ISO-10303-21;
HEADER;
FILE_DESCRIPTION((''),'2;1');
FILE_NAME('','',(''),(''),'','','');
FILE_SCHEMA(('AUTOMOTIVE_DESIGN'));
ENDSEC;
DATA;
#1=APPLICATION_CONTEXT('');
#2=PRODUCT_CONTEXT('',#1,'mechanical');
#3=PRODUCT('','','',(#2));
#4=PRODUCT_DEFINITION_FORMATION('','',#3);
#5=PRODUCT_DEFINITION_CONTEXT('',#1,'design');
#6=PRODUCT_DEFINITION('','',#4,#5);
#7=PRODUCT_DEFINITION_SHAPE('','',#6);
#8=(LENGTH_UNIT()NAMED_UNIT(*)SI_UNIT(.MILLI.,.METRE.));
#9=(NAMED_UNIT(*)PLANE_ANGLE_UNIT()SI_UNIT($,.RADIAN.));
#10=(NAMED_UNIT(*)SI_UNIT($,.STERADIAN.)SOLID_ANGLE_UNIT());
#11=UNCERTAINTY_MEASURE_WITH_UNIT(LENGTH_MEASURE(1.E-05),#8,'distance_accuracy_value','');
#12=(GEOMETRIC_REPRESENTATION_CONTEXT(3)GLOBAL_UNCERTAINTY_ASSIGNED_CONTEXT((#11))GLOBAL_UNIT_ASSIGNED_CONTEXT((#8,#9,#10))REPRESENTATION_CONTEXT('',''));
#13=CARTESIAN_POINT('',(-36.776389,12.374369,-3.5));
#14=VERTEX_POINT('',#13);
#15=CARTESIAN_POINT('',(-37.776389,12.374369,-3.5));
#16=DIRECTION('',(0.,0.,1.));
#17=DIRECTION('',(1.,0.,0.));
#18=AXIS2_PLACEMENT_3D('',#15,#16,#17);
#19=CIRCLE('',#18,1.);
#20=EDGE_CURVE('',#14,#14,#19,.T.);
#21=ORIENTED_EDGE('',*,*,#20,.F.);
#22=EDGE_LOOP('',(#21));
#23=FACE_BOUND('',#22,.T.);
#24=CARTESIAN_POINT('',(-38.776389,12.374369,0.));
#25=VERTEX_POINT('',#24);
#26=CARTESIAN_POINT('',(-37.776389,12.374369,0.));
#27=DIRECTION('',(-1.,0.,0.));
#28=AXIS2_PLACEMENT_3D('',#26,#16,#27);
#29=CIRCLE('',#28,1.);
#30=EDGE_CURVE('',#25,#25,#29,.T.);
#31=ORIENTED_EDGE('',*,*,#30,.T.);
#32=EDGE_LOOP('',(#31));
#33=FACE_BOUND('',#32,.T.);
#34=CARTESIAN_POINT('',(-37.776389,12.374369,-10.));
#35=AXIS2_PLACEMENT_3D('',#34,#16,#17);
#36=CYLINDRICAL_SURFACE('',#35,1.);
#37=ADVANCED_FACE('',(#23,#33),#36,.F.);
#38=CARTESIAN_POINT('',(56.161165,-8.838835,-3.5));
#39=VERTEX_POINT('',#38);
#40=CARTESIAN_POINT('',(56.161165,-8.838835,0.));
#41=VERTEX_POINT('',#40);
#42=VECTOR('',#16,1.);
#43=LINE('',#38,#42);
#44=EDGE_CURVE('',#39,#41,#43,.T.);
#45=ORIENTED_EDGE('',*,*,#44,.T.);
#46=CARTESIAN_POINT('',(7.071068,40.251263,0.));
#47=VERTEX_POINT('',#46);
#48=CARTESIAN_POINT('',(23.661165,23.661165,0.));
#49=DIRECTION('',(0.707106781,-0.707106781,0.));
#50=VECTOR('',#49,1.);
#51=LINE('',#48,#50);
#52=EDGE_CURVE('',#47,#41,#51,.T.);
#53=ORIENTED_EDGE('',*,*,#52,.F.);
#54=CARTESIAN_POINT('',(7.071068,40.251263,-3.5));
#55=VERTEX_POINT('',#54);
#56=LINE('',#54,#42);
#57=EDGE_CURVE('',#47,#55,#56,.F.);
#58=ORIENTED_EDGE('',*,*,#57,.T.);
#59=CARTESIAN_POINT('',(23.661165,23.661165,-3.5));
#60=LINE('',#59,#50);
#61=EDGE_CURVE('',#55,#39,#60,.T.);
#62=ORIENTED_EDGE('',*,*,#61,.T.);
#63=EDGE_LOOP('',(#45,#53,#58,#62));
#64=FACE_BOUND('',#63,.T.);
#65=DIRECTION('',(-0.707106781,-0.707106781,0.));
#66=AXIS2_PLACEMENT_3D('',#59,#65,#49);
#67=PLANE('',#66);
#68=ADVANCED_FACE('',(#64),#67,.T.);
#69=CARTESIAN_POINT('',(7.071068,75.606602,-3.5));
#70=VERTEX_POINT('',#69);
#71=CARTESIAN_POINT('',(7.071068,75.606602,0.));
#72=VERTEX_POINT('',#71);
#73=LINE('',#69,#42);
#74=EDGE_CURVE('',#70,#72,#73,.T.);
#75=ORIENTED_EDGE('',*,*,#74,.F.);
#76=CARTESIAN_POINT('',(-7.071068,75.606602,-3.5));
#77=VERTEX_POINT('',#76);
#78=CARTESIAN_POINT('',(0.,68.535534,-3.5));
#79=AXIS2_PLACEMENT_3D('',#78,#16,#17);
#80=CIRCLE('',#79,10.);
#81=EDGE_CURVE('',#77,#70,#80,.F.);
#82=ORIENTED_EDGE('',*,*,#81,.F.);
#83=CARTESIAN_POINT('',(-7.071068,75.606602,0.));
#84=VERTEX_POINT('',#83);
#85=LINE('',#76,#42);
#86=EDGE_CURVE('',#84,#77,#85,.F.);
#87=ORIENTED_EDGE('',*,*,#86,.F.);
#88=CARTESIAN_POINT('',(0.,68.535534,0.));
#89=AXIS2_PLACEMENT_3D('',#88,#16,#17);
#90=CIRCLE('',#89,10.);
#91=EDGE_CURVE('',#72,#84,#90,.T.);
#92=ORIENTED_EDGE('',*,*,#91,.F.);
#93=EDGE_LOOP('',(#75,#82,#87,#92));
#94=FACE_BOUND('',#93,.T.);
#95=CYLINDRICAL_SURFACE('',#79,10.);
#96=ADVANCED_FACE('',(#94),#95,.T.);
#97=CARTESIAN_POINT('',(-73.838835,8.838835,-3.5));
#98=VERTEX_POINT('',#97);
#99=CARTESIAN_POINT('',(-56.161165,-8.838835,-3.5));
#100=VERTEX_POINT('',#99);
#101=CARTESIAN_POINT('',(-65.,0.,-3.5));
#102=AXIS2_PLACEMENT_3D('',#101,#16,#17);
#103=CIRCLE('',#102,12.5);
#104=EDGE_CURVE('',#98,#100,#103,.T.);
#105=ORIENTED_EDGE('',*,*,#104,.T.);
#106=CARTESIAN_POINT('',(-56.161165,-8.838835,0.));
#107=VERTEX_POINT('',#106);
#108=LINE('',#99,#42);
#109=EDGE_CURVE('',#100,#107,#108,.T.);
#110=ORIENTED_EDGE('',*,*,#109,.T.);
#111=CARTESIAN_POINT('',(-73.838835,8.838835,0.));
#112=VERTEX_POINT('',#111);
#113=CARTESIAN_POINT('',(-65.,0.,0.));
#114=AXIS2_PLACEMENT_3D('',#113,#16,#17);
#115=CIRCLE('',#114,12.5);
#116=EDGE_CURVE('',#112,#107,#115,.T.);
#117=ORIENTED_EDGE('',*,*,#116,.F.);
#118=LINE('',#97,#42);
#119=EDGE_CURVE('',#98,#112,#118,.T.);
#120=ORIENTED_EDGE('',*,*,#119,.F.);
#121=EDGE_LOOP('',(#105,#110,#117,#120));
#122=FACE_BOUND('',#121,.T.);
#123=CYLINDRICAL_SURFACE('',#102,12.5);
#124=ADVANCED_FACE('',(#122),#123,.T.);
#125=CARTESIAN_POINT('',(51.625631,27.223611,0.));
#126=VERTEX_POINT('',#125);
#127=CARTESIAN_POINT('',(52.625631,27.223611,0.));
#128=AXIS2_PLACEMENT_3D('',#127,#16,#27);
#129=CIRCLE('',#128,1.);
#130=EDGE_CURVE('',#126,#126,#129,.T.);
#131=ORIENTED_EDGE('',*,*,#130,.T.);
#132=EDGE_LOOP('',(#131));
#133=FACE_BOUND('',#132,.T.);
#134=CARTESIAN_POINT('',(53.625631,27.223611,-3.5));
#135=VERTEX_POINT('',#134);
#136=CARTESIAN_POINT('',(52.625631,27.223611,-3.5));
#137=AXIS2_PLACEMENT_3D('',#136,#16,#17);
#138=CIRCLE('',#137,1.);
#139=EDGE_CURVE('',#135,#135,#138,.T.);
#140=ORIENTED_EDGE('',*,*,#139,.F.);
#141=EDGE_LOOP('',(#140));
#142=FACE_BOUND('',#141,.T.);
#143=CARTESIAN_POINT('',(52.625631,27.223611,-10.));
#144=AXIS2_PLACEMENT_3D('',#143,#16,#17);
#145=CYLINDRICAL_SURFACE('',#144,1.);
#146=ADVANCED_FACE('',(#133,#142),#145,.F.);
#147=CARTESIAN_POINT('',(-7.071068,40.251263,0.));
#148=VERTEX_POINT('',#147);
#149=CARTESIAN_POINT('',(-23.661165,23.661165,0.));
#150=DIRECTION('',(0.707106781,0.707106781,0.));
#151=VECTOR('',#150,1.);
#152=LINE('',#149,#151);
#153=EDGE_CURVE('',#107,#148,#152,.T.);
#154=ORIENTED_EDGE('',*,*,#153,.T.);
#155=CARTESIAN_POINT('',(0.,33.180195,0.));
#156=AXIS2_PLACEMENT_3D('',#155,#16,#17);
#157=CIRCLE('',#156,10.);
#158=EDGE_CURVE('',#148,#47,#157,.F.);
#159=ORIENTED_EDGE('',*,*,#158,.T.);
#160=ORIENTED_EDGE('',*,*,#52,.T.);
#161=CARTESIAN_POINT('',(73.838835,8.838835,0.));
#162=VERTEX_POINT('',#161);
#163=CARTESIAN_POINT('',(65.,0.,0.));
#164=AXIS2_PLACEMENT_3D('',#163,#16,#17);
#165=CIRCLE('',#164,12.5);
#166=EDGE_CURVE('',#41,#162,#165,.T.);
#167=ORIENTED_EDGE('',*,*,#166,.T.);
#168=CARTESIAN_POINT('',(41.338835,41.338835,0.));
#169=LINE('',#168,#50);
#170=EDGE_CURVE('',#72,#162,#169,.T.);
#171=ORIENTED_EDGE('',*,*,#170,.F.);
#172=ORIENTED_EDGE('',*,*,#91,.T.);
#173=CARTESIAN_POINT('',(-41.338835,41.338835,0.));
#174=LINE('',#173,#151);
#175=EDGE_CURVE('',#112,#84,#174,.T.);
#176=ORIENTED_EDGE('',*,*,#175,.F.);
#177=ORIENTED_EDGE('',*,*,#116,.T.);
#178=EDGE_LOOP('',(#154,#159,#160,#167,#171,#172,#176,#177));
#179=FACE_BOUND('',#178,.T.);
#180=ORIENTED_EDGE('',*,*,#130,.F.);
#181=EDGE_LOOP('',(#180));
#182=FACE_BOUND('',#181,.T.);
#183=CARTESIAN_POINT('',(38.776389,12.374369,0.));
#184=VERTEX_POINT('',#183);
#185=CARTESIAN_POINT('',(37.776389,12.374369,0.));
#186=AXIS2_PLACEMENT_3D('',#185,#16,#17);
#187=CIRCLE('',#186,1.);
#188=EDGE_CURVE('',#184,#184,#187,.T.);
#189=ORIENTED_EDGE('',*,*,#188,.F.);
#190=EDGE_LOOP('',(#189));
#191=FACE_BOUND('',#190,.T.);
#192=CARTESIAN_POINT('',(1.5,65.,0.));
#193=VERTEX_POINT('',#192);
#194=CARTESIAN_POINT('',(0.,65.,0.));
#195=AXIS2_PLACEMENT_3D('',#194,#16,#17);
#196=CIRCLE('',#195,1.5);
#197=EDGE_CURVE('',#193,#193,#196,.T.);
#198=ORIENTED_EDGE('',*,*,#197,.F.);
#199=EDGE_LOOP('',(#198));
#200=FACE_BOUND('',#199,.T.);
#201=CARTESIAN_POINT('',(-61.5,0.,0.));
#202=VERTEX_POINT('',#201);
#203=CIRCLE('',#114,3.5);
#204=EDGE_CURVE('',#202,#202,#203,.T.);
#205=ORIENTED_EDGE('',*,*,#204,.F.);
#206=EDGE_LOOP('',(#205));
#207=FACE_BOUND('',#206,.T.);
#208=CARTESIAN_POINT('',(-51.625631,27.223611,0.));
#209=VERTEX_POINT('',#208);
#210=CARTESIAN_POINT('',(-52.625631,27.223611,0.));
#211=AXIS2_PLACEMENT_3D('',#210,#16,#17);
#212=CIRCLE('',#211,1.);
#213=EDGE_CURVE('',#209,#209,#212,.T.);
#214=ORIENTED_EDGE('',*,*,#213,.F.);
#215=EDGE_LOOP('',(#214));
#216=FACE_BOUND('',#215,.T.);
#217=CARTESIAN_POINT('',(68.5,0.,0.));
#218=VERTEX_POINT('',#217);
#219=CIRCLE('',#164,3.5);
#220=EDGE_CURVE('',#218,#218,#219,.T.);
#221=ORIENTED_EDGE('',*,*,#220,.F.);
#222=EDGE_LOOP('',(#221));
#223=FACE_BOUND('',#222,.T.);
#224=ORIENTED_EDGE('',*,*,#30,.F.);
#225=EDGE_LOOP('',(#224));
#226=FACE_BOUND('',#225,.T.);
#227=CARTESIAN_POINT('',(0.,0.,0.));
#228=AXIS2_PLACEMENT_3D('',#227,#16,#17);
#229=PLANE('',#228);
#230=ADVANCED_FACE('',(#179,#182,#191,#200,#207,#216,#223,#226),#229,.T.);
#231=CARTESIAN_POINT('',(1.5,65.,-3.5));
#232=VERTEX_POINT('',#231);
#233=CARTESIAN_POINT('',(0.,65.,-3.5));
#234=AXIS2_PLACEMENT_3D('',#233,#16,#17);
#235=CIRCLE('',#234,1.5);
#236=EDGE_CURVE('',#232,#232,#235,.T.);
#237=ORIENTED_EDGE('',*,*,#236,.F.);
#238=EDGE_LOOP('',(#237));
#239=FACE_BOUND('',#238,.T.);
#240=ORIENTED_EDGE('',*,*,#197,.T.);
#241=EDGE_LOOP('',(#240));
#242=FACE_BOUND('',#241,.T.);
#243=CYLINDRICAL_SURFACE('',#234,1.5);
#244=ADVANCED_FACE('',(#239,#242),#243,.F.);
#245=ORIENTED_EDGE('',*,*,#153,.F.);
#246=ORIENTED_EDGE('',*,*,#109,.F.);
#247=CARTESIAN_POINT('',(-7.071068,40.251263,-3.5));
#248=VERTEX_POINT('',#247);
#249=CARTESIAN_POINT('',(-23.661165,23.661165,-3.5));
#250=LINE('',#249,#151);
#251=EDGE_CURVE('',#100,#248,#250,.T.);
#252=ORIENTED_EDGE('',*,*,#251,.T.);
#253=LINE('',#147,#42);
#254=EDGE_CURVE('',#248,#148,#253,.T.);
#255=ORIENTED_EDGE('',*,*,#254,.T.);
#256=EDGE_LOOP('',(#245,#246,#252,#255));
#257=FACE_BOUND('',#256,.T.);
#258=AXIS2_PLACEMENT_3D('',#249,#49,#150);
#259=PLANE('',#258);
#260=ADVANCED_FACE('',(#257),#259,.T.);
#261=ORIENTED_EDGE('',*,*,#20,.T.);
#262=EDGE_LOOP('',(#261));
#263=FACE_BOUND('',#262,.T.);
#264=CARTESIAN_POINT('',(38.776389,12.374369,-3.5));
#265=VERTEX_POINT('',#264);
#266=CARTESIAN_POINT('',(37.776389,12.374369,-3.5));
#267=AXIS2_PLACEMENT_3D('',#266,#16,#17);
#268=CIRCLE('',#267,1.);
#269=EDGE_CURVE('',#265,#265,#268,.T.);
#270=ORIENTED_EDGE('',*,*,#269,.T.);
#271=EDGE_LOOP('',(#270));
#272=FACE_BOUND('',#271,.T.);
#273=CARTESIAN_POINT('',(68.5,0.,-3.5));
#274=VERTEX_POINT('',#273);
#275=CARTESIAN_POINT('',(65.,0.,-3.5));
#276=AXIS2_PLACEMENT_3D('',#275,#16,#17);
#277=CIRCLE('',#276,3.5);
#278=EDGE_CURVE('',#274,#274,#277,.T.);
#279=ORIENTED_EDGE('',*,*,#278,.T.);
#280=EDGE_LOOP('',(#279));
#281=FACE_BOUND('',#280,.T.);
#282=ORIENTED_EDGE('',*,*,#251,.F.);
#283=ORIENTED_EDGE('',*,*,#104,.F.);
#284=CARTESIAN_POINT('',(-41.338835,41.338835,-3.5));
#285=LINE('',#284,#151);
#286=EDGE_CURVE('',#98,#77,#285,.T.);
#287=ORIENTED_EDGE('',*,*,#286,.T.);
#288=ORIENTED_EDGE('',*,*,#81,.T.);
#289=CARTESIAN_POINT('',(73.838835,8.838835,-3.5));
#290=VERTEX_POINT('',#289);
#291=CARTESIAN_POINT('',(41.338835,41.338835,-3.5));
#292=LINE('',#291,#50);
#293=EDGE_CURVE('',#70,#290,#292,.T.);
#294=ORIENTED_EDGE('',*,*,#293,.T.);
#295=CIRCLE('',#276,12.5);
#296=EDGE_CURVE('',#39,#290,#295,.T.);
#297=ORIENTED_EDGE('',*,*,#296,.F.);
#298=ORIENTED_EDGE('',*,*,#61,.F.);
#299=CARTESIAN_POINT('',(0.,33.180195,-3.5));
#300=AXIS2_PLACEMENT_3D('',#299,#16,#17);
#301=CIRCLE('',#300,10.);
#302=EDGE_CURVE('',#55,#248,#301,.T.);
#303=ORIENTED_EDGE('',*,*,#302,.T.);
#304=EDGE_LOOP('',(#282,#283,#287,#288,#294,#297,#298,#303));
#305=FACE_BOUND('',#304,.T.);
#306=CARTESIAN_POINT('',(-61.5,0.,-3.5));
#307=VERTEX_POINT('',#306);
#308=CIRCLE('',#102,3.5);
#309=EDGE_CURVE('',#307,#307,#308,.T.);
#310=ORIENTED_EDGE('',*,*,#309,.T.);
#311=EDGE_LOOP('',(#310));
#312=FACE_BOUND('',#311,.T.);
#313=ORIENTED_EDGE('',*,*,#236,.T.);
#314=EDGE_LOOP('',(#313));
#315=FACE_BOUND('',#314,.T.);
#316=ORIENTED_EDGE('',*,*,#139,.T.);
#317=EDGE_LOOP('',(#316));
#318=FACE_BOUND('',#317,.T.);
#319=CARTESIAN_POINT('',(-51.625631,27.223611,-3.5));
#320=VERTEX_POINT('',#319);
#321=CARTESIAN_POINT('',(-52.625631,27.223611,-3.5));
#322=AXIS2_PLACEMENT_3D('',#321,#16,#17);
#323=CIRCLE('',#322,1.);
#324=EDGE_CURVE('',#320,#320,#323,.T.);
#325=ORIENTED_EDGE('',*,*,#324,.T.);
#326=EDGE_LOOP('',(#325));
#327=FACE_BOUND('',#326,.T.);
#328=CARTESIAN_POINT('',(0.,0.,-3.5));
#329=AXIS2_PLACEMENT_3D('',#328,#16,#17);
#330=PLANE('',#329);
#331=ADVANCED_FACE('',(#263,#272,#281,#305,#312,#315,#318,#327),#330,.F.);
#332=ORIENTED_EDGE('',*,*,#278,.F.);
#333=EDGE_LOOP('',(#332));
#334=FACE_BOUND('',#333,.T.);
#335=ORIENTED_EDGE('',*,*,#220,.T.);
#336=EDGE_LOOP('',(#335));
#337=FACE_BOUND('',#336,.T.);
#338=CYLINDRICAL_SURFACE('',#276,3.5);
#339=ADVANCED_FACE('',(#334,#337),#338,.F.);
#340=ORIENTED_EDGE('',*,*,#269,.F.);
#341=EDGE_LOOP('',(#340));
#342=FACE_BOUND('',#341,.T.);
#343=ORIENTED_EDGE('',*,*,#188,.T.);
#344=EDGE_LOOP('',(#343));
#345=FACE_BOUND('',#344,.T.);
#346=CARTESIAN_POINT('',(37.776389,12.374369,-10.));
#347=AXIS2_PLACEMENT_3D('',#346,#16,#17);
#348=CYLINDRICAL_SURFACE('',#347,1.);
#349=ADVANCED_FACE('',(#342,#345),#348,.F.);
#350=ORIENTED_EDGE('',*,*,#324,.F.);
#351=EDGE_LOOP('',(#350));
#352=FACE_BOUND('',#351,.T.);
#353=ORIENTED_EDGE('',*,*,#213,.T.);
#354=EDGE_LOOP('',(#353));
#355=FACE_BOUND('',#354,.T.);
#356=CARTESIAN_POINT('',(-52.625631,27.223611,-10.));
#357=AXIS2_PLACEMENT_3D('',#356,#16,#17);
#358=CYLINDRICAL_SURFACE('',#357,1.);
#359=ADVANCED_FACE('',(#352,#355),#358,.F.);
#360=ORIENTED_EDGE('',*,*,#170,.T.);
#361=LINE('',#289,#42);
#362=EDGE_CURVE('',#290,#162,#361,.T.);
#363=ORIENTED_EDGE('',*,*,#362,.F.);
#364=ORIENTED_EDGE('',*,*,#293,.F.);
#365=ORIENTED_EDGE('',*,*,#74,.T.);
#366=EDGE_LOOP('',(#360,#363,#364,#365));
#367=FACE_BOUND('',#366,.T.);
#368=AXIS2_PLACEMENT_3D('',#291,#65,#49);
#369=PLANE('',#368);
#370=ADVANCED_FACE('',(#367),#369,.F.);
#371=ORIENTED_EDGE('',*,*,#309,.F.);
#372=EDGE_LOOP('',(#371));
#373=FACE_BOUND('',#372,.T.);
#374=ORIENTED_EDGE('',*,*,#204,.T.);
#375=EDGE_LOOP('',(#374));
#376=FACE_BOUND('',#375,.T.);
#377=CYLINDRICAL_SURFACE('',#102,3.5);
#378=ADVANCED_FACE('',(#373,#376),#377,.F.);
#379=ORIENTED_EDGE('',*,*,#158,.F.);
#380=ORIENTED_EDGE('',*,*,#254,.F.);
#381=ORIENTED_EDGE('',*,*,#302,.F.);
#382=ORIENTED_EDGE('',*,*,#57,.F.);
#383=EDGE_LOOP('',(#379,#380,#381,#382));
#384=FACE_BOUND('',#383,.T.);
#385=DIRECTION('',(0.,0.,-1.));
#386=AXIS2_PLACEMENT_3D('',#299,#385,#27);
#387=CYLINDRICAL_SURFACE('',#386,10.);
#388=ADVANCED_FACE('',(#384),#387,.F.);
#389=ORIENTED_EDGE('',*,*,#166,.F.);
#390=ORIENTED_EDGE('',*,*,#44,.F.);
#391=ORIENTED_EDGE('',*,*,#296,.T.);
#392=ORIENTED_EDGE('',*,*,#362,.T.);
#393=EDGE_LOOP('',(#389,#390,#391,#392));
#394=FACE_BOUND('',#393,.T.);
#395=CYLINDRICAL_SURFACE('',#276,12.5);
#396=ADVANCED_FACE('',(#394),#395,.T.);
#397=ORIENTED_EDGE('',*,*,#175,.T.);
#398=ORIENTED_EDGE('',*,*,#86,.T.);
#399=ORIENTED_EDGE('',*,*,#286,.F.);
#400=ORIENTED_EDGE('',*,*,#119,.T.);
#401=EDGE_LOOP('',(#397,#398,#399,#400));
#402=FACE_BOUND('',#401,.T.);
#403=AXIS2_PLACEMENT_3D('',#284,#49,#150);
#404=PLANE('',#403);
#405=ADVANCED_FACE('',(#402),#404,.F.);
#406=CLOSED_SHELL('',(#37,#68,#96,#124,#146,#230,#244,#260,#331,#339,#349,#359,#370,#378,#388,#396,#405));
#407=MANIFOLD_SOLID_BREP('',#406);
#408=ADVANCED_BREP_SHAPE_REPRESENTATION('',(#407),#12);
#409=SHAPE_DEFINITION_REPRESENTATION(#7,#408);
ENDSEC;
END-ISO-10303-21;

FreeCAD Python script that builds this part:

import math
import FreeCAD as App
import Part
import Sketcher

V = App.Vector


def edges_at(feature, points):
    """Names of the edges that pass closest to the given points."""
    edges = feature.Shape.Edges
    near = lambda p: min(range(len(edges)), key=lambda i: edges[i].distToShape(Part.Vertex(*p))[0])
    return sorted({f"Edge{near(p) + 1}" for p in points})

doc = App.newDocument("Part")
body = doc.addObject("PartDesign::Body", "Body")

sketch1 = body.newObject("Sketcher::SketchObject", "Sketch")
sketch1.AttachmentSupport = (doc.getObject("XY_Plane"), [""])
sketch1.MapMode = "FlatFace"
sketch1.addGeometry([
    Part.LineSegment(V(-56.161165, -8.838835, 0), V(0, 47.32233, 0)),
    Part.LineSegment(V(0, 47.32233, 0), V(56.161165, -8.838835, 0)),
    Part.ArcOfCircle(Part.Circle(V(65, 0, 0), V(0, 0, 1), 12.5), math.radians(-135), math.radians(45)),
    Part.LineSegment(V(73.838835, 8.838835, 0), V(0, 82.67767, 0)),
    Part.LineSegment(V(0, 82.67767, 0), V(-73.838835, 8.838835, 0)),
    Part.ArcOfCircle(Part.Circle(V(-65, 0, 0), V(0, 0, 1), 12.5), math.radians(135), math.radians(315)),
    Part.Circle(V(-65, 0, 0), V(0, 0, 1), 3.5),
    Part.Circle(V(65, 0, 0), V(0, 0, 1), 3.5),
    Part.Circle(V(0, 65, 0), V(0, 0, 1), 1.5),
], False)
sketch1.addConstraint([
    Sketcher.Constraint("Coincident", 0, 2, 1, 1),
    Sketcher.Constraint("Tangent", 1, 2, 2, 1),
    Sketcher.Constraint("Tangent", 2, 2, 3, 1),
    Sketcher.Constraint("Coincident", 3, 2, 4, 1),
    Sketcher.Constraint("Tangent", 4, 2, 5, 1),
    Sketcher.Constraint("Tangent", 5, 2, 0, 1),
    Sketcher.Constraint("Coincident", 6, 3, 5, 3),
    Sketcher.Constraint("Coincident", 7, 3, 2, 3),
    Sketcher.Constraint("Equal", 2, 5),
    Sketcher.Constraint("Equal", 6, 7),
    Sketcher.Constraint("Symmetric", 2, 3, 5, 3, -1, 1),
    Sketcher.Constraint("Symmetric", 2, 2, 4, 2, -2),
    Sketcher.Constraint("PointOnObject", 8, 3, -2),
    Sketcher.Constraint("PointOnObject", 0, 2, -2),
    Sketcher.Constraint("Perpendicular", 0, 1),
    Sketcher.Constraint("Parallel", 1, 3),
    Sketcher.Constraint("Diameter", 6, 7.0),
    Sketcher.Constraint("Diameter", 8, 3.0),
    Sketcher.Constraint("Radius", 2, 12.5),
    Sketcher.Constraint("DistanceX", -1, 1, 2, 3, 65.0),
    Sketcher.Constraint("DistanceY", -1, 1, 8, 3, 65.0),
])
pad1 = body.newObject("PartDesign::Pad", "Pad")
pad1.Profile = sketch1
pad1.Length = 3.5
pad1.Reversed = True
doc.recompute()

fillet = body.newObject("PartDesign::Fillet", "Fillet")
fillet.Base = (pad1, edges_at(pad1, [(0, 82.678, -1.75), (0, 47.322, -1.75)]))
fillet.Radius = 10

sketch2 = body.newObject("Sketcher::SketchObject", "Sketch001")
sketch2.AttachmentSupport = (doc.getObject("XY_Plane"), [""])
sketch2.MapMode = "FlatFace"
sketch2.addGeometry([
    Part.Circle(V(-52.625631, 27.223611, 0), V(0, 0, 1), 1),
    Part.Circle(V(-37.776389, 12.374369, 0), V(0, 0, 1), 1),
    Part.Circle(V(37.776389, 12.374369, 0), V(0, 0, 1), 1),
    Part.Circle(V(52.625631, 27.223611, 0), V(0, 0, 1), 1),
], False)
sketch2.addConstraint([
    Sketcher.Constraint("Equal", 0, 1),
    Sketcher.Constraint("Equal", 1, 2),
    Sketcher.Constraint("Equal", 2, 3),
    Sketcher.Constraint("Symmetric", 1, 3, 2, 3, -2),
    Sketcher.Constraint("Symmetric", 0, 3, 3, 3, -2),
    Sketcher.Constraint("Diameter", 0, 2.0),
    Sketcher.Constraint("DistanceX", 0, 3, -1, 1, 52.625631),
    Sketcher.Constraint("DistanceY", -1, 1, 0, 3, 27.223611),
    Sketcher.Constraint("DistanceX", 1, 3, -1, 1, 37.776389),
    Sketcher.Constraint("DistanceY", -1, 1, 1, 3, 12.374369),
])
pocket1 = body.newObject("PartDesign::Pocket", "Pocket")
pocket1.Profile = sketch2
pocket1.Length = 10

doc.recompute()
